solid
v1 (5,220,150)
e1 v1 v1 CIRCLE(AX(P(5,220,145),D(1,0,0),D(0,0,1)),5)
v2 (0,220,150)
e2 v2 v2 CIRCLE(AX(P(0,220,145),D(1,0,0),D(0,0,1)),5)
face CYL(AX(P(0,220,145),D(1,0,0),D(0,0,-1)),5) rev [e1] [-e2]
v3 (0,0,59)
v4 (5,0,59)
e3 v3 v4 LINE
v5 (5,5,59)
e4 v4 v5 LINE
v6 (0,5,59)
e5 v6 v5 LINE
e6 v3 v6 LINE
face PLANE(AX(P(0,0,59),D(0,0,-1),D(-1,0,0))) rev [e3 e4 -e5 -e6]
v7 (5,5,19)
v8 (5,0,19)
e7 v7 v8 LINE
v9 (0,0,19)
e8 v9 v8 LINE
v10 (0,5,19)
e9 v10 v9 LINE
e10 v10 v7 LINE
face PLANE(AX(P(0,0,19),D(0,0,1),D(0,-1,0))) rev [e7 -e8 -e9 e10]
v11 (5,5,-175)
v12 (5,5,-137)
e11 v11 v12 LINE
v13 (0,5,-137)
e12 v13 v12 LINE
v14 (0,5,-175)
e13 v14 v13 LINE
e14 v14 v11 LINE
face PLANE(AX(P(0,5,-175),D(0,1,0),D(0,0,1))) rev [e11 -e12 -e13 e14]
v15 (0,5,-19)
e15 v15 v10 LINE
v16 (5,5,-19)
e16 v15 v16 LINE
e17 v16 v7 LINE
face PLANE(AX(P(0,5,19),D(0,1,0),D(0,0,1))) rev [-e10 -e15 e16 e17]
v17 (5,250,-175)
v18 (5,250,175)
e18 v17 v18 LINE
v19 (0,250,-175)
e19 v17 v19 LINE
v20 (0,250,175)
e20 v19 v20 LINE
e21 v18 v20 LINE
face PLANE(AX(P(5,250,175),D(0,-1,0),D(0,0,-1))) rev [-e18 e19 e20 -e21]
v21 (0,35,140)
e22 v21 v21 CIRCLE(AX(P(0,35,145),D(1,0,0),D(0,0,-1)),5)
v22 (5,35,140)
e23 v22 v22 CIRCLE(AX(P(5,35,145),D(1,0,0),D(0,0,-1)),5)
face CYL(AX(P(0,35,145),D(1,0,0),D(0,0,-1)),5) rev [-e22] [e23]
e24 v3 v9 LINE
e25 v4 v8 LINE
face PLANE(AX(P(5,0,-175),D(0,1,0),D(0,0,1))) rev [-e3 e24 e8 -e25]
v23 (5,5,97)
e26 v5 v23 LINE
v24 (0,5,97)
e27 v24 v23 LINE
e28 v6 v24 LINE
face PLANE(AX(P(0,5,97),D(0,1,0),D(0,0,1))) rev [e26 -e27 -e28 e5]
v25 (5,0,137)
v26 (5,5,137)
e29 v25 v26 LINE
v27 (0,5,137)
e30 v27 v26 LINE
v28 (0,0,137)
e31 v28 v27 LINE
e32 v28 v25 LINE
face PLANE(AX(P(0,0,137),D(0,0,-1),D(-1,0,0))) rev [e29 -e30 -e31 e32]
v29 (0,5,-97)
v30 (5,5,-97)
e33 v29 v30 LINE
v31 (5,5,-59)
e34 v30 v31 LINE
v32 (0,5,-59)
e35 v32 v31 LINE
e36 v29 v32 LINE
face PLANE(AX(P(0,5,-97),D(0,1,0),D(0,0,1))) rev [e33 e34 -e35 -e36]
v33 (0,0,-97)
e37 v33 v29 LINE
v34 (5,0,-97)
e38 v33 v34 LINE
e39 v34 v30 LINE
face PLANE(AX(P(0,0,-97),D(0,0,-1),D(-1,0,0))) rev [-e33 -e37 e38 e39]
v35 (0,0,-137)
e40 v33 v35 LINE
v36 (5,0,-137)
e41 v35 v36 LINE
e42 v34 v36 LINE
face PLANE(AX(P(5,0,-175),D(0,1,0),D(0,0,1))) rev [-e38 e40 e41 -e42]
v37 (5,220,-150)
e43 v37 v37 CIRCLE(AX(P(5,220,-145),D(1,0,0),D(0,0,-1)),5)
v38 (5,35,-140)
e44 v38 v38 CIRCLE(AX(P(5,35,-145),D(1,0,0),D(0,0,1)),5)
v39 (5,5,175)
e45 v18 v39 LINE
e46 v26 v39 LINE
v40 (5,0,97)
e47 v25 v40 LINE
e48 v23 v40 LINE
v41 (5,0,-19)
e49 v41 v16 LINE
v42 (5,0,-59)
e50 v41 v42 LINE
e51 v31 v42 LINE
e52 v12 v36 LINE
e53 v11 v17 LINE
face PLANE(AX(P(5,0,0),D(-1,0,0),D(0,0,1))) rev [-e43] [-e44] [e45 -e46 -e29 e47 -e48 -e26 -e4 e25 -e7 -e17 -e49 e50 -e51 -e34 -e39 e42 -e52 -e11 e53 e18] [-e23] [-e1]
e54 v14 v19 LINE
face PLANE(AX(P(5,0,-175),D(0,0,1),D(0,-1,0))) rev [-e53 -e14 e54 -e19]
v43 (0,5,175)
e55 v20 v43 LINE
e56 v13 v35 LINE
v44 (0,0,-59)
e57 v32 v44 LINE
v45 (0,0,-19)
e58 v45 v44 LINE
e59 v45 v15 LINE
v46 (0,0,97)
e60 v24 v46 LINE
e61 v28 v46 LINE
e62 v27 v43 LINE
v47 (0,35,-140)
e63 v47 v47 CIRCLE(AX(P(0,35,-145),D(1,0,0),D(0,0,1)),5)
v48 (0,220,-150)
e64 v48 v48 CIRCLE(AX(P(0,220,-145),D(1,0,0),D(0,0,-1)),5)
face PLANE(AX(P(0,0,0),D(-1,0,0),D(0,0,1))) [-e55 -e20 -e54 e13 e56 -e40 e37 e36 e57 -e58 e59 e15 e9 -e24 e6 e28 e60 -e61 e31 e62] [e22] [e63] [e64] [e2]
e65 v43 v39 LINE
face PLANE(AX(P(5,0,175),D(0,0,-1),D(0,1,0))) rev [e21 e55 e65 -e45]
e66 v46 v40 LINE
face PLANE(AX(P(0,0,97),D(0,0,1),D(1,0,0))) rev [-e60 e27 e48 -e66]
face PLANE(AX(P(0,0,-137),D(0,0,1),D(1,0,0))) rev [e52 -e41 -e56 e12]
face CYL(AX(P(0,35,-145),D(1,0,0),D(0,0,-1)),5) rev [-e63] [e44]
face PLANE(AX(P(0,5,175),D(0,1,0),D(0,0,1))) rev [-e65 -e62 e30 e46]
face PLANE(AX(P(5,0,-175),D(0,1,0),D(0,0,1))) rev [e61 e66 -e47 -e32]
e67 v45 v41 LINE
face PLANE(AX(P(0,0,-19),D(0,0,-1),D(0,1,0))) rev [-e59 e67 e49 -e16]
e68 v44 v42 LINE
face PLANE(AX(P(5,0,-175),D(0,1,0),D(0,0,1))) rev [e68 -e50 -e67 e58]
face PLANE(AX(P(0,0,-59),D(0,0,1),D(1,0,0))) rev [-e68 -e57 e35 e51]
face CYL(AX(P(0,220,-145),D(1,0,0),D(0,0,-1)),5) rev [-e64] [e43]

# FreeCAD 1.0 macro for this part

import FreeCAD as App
import Part
import Sketcher
from FreeCAD import Vector

doc = App.newDocument("Part")
body = doc.addObject("PartDesign::Body", "Body")

# Sketch on YZ plane
sketch1 = body.newObject("Sketcher::SketchObject", "Sketch")
sketch1.AttachmentSupport = (doc.getObject("YZ_Plane"), [""])
sketch1.MapMode = "FlatFace"
sketch1.addGeometry([
    Part.LineSegment(Vector(250, 175, 0), Vector(0, 175, 0)),
    Part.LineSegment(Vector(0, 175, 0), Vector(0, -175, 0)),
    Part.LineSegment(Vector(0, -175, 0), Vector(250, -175, 0)),
    Part.LineSegment(Vector(250, -175, 0), Vector(250, 175, 0)),
], False)
sketch1.addConstraint([
    Sketcher.Constraint("Coincident", 0, 2, 1, 1),
    Sketcher.Constraint("Coincident", 1, 2, 2, 1),
    Sketcher.Constraint("Coincident", 2, 2, 3, 1),
    Sketcher.Constraint("Coincident", 3, 2, 0, 1),
    Sketcher.Constraint("Horizontal", 0),
    Sketcher.Constraint("Vertical", 1),
    Sketcher.Constraint("Horizontal", 2),
    Sketcher.Constraint("Vertical", 3),
    Sketcher.Constraint("Symmetric", 0, 2, 1, 2, -1, 1),
    Sketcher.Constraint("DistanceX", 0, 2, 0, 1, 250.0),
    Sketcher.Constraint("DistanceY", 1, 2, 1, 1, 350.0),
])
pad1 = body.newObject("PartDesign::Pad", "Pad")
pad1.Profile = sketch1
pad1.Length = 5

# Sketch on YZ plane
sketch2 = body.newObject("Sketcher::SketchObject", "Sketch001")
sketch2.AttachmentSupport = (doc.getObject("YZ_Plane"), [""])
sketch2.MapMode = "FlatFace"
sketch2.AttachmentOffset = App.Placement(Vector(0, 0, 5), App.Rotation())
sketch2.addGeometry([
    Part.LineSegment(Vector(5, 175, 0), Vector(0, 175, 0)),  # 0
    Part.LineSegment(Vector(0, 175, 0), Vector(0, 137, 0)),  # 1
    Part.LineSegment(Vector(0, 137, 0), Vector(5, 137, 0)),  # 2
    Part.LineSegment(Vector(5, 137, 0), Vector(5, 175, 0)),  # 3
    Part.LineSegment(Vector(5, 97, 0), Vector(0, 97, 0)),  # 4
    Part.LineSegment(Vector(0, 97, 0), Vector(0, 59, 0)),  # 5
    Part.LineSegment(Vector(0, 59, 0), Vector(5, 59, 0)),  # 6
    Part.LineSegment(Vector(5, 59, 0), Vector(5, 97, 0)),  # 7
    Part.LineSegment(Vector(5, 19, 0), Vector(0, 19, 0)),  # 8
    Part.LineSegment(Vector(0, 19, 0), Vector(0, -19, 0)),  # 9
    Part.LineSegment(Vector(0, -19, 0), Vector(5, -19, 0)),  # 10
    Part.LineSegment(Vector(5, -19, 0), Vector(5, 19, 0)),  # 11
    Part.LineSegment(Vector(5, -59, 0), Vector(0, -59, 0)),  # 12
    Part.LineSegment(Vector(0, -59, 0), Vector(0, -97, 0)),  # 13
    Part.LineSegment(Vector(0, -97, 0), Vector(5, -97, 0)),  # 14
    Part.LineSegment(Vector(5, -97, 0), Vector(5, -59, 0)),  # 15
    Part.LineSegment(Vector(5, -137, 0), Vector(0, -137, 0)),  # 16
    Part.LineSegment(Vector(0, -137, 0), Vector(0, -175, 0)),  # 17
    Part.LineSegment(Vector(0, -175, 0), Vector(5, -175, 0)),  # 18
    Part.LineSegment(Vector(5, -175, 0), Vector(5, -137, 0)),  # 19
], False)
sketch2.addConstraint([
    Sketcher.Constraint("Coincident", 0, 2, 1, 1),
    Sketcher.Constraint("Coincident", 1, 2, 2, 1),
    Sketcher.Constraint("Coincident", 2, 2, 3, 1),
    Sketcher.Constraint("Coincident", 3, 2, 0, 1),
    Sketcher.Constraint("Coincident", 4, 2, 5, 1),
    Sketcher.Constraint("Coincident", 5, 2, 6, 1),
    Sketcher.Constraint("Coincident", 6, 2, 7, 1),
    Sketcher.Constraint("Coincident", 7, 2, 4, 1),
    Sketcher.Constraint("Coincident", 8, 2, 9, 1),
    Sketcher.Constraint("Coincident", 9, 2, 10, 1),
    Sketcher.Constraint("Coincident", 10, 2, 11, 1),
    Sketcher.Constraint("Coincident", 11, 2, 8, 1),
    Sketcher.Constraint("Coincident", 12, 2, 13, 1),
    Sketcher.Constraint("Coincident", 13, 2, 14, 1),
    Sketcher.Constraint("Coincident", 14, 2, 15, 1),
    Sketcher.Constraint("Coincident", 15, 2, 12, 1),
    Sketcher.Constraint("Coincident", 16, 2, 17, 1),
    Sketcher.Constraint("Coincident", 17, 2, 18, 1),
    Sketcher.Constraint("Coincident", 18, 2, 19, 1),
    Sketcher.Constraint("Coincident", 19, 2, 16, 1),
    Sketcher.Constraint("Horizontal", 0),
    Sketcher.Constraint("Vertical", 1),
    Sketcher.Constraint("Horizontal", 2),
    Sketcher.Constraint("Vertical", 3),
    Sketcher.Constraint("Horizontal", 4),
    Sketcher.Constraint("Vertical", 5),
    Sketcher.Constraint("Horizontal", 6),
    Sketcher.Constraint("Vertical", 7),
    Sketcher.Constraint("Horizontal", 8),
    Sketcher.Constraint("Vertical", 9),
    Sketcher.Constraint("Horizontal", 10),
    Sketcher.Constraint("Vertical", 11),
    Sketcher.Constraint("Horizontal", 12),
    Sketcher.Constraint("Vertical", 13),
    Sketcher.Constraint("Horizontal", 14),
    Sketcher.Constraint("Vertical", 15),
    Sketcher.Constraint("Horizontal", 16),
    Sketcher.Constraint("Vertical", 17),
    Sketcher.Constraint("Horizontal", 18),
    Sketcher.Constraint("Vertical", 19),
    Sketcher.Constraint("Symmetric", 8, 2, 9, 2, -1, 1),
    Sketcher.Constraint("Symmetric", 5, 2, 12, 2, -1, 1),
    Sketcher.Constraint("Symmetric", 1, 2, 16, 2, -1, 1),
    Sketcher.Constraint("Symmetric", 4, 2, 13, 2, -1),
    Sketcher.Constraint("Symmetric", 0, 2, 17, 2, -1),
    Sketcher.Constraint("Vertical", 3, 2, 6, 2),
    Sketcher.Constraint("Vertical", 7, 2, 10, 2),
    Sketcher.Constraint("Vertical", 11, 2, 14, 2),
    Sketcher.Constraint("Vertical", 15, 2, 18, 2),
    Sketcher.Constraint("Equal", 3, 5),
    Sketcher.Constraint("Equal", 7, 9),
    Sketcher.Constraint("DistanceX", 0, 2, 0, 1, 5.0),
    Sketcher.Constraint("DistanceY", 1, 2, 1, 1, 38.0),
    Sketcher.Constraint("DistanceY", -1, 1, 0, 2, 175.0),
    Sketcher.Constraint("DistanceY", -1, 1, 4, 2, 97.0),
])
pocket1 = body.newObject("PartDesign::Pocket", "Pocket")
pocket1.Profile = sketch2
pocket1.Type = "ThroughAll"

# Sketch on YZ plane
sketch3 = body.newObject("Sketcher::SketchObject", "Sketch002")
sketch3.AttachmentSupport = (doc.getObject("YZ_Plane"), [""])
sketch3.MapMode = "FlatFace"
sketch3.AttachmentOffset = App.Placement(Vector(0, 0, 5), App.Rotation())
sketch3.addGeometry([
    Part.Circle(Vector(220, -145, 0), Vector(0, 0, 1), 5),
    Part.Circle(Vector(220, 145, 0), Vector(0, 0, 1), 5),
    Part.Circle(Vector(35, 145, 0), Vector(0, 0, 1), 5),
    Part.Circle(Vector(35, -145, 0), Vector(0, 0, 1), 5),
], False)
sketch3.addConstraint([
    Sketcher.Constraint("Equal", 0, 1),
    Sketcher.Constraint("Equal", 1, 2),
    Sketcher.Constraint("Equal", 2, 3),
    Sketcher.Constraint("Symmetric", 0, 3, 1, 3, -1),
    Sketcher.Constraint("Symmetric", 2, 3, 3, 3, -1),
    Sketcher.Constraint("Horizontal", 1, 3, 2, 3),
    Sketcher.Constraint("Diameter", 0, 10.0),
    Sketcher.Constraint("DistanceX", -1, 1, 0, 3, 220.0),
    Sketcher.Constraint("DistanceY", 0, 3, -1, 1, 145.0),
    Sketcher.Constraint("DistanceX", -1, 1, 2, 3, 35.0),
])
pocket2 = body.newObject("PartDesign::Pocket", "Pocket001")
pocket2.Profile = sketch3
pocket2.Type = "ThroughAll"

doc.recompute()
